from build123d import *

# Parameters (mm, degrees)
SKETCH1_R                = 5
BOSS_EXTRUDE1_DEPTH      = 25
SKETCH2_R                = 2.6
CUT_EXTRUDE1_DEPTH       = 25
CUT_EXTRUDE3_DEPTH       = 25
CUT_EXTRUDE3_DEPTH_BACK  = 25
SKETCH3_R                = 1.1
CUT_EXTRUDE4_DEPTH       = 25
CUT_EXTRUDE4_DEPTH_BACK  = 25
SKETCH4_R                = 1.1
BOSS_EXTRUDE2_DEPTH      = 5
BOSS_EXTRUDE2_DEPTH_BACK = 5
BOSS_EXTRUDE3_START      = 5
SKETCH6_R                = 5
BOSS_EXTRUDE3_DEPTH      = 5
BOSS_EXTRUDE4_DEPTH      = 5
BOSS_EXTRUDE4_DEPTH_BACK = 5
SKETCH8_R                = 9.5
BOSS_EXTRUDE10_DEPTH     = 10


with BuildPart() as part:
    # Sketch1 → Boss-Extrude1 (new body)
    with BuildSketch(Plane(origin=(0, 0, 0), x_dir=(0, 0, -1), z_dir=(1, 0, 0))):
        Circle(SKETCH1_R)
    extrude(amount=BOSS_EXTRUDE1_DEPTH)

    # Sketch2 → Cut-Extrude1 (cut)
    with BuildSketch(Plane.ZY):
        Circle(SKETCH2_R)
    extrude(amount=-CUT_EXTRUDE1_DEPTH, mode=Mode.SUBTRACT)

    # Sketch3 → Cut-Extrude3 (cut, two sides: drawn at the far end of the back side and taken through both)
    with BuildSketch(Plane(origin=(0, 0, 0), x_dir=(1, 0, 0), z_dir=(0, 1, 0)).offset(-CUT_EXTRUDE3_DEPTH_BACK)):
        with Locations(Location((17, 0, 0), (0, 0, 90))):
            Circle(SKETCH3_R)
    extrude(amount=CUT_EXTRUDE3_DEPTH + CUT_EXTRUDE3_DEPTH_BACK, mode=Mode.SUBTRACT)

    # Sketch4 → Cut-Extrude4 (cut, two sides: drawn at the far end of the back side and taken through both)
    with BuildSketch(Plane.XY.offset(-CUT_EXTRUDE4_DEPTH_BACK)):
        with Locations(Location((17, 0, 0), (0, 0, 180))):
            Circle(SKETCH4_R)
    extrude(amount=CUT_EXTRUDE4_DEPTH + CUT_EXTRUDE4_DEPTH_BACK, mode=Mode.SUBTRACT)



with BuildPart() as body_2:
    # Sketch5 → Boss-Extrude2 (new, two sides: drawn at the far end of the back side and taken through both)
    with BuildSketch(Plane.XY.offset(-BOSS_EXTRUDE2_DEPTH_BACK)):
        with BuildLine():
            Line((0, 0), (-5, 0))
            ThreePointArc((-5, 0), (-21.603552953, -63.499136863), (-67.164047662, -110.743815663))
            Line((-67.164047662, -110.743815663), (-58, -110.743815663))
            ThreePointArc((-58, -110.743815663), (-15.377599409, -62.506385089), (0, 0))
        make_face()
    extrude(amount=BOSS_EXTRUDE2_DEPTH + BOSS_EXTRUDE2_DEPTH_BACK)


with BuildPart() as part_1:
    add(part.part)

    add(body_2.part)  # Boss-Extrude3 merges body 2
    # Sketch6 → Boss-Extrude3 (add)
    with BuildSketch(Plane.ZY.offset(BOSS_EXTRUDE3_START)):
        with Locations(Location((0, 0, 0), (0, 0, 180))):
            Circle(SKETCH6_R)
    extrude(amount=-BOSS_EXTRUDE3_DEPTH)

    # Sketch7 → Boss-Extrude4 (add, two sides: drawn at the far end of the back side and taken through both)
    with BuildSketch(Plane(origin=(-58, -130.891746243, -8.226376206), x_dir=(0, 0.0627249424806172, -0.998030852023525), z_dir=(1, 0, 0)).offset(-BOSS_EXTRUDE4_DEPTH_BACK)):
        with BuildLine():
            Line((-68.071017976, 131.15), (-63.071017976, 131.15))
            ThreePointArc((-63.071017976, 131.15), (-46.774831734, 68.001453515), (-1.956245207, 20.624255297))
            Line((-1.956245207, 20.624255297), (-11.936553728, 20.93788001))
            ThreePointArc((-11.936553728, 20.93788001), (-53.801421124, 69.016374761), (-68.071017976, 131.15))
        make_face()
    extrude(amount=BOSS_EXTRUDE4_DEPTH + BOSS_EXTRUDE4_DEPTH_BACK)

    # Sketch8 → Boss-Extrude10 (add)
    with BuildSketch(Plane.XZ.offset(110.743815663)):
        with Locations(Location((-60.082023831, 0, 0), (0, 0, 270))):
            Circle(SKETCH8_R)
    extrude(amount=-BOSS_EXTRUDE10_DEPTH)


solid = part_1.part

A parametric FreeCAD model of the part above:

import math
import FreeCAD as App
import Part
import Sketcher
from FreeCAD import Vector

doc = App.newDocument("Part")
params = doc.addObject("Spreadsheet::Sheet", "Params")
for row, (alias, value) in enumerate([
    ("sketch1_diameter", "10 mm"),
    ("pad1_length", "25 mm"),
    ("sketch2_diameter", "5.2 mm"),
    ("pocket1_length", "25 mm"),
    ("sketch3_diameter", "2.2 mm"),
    ("sketch4_diameter", "2.2 mm"),
    ("sketch5_width", "5 mm"),
    ("pad2_length", "5 mm"),
    ("pad2_length2", "5 mm"),
    ("sketch6_diameter", "10 mm"),
    ("pad3_length", "5 mm"),
    ("sketch7_radius", "130.5 mm"),
    ("sketch7_length", "5 mm"),
    ("pad4_length", "5 mm"),
    ("pad4_length2", "5 mm"),
    ("sketch8_diameter", "19 mm"),
    ("pad5_length", "10 mm"),
], start=1):
    params.set(f"A{row}", alias)
    params.set(f"B{row}", "=" + value)
    params.setAlias(f"B{row}", alias)

body = doc.addObject("PartDesign::Body", "Body")

# Sketch on YZ plane
sketch1 = body.newObject("Sketcher::SketchObject", "Sketch")
sketch1.AttachmentSupport = (doc.getObject("YZ_Plane"), [""])
sketch1.MapMode = "FlatFace"
sketch1.addGeometry(Part.Circle(Vector(0, 0, 0), Vector(0, 0, 1), 5), False)
sketch1.addConstraint(Sketcher.Constraint("Coincident", 0, 3, -1, 1))
sketch1.addConstraint(Sketcher.Constraint("Diameter", 0, 10.0))
sketch1.setExpression("Constraints[1]", "Params.sketch1_diameter")
pad1 = body.newObject("PartDesign::Pad", "Pad")
pad1.Profile = sketch1
pad1.setExpression("Length", "Params.pad1_length")

# Sketch on YZ plane
sketch2 = body.newObject("Sketcher::SketchObject", "Sketch001")
sketch2.AttachmentSupport = (doc.getObject("YZ_Plane"), [""])
sketch2.MapMode = "FlatFace"
sketch2.addGeometry(Part.Circle(Vector(0, 0, 0), Vector(0, 0, 1), 2.6), False)
sketch2.addConstraint(Sketcher.Constraint("Coincident", 0, 3, -1, 1))
sketch2.addConstraint(Sketcher.Constraint("Diameter", 0, 5.2))
sketch2.setExpression("Constraints[1]", "Params.sketch2_diameter")
pocket1 = body.newObject("PartDesign::Pocket", "Pocket")
pocket1.Profile = sketch2
pocket1.setExpression("Length", "Params.pocket1_length")
pocket1.Reversed = True

# Sketch on XZ plane
sketch3 = body.newObject("Sketcher::SketchObject", "Sketch002")
sketch3.AttachmentSupport = (doc.getObject("XZ_Plane"), [""])
sketch3.MapMode = "FlatFace"
sketch3.addGeometry(Part.Circle(Vector(17, 0, 0), Vector(0, 0, 1), 1.1), False)
sketch3.addConstraint(Sketcher.Constraint("PointOnObject", 0, 3, -1))
sketch3.addConstraint(Sketcher.Constraint("Diameter", 0, 2.2))
sketch3.addConstraint(Sketcher.Constraint("DistanceX", -1, 1, 0, 3, 17.0))
sketch3.setExpression("Constraints[1]", "Params.sketch3_diameter")
pocket2 = body.newObject("PartDesign::Pocket", "Pocket001")
pocket2.Profile = sketch3
pocket2.Type = "ThroughAll"
pocket2.Midplane = True

# Sketch on XY plane
sketch4 = body.newObject("Sketcher::SketchObject", "Sketch003")
sketch4.AttachmentSupport = (doc.getObject("XY_Plane"), [""])
sketch4.MapMode = "FlatFace"
sketch4.addGeometry(Part.Circle(Vector(17, 0, 0), Vector(0, 0, 1), 1.1), False)
sketch4.addConstraint(Sketcher.Constraint("PointOnObject", 0, 3, -1))
sketch4.addConstraint(Sketcher.Constraint("Diameter", 0, 2.2))
sketch4.addConstraint(Sketcher.Constraint("DistanceX", -1, 1, 0, 3, 17.0))
sketch4.setExpression("Constraints[1]", "Params.sketch4_diameter")
pocket3 = body.newObject("PartDesign::Pocket", "Pocket002")
pocket3.Profile = sketch4
pocket3.Type = "ThroughAll"
pocket3.Midplane = True
body2 = doc.addObject("PartDesign::Body", "Body001")

# Sketch on XY plane
sketch5 = body2.newObject("Sketcher::SketchObject", "Sketch004")
sketch5.AttachmentSupport = (doc.getObject("XY_Plane001"), [""])
sketch5.MapMode = "FlatFace"
sketch5.addGeometry(Part.LineSegment(Vector(0, 0, 0), Vector(-5, 0, 0)), False)
sketch5.addGeometry(Part.ArcOfCircle(Part.Circle(Vector(-135, 0, 0), Vector(0, 0, 1), 130), math.radians(-59), math.radians(0)), False)
sketch5.addGeometry(Part.LineSegment(Vector(-67, -111, 0), Vector(-58, -111, 0)), False)
sketch5.addGeometry(Part.ArcOfCircle(Part.Circle(Vector(-135, 0, 0), Vector(0, 0, 1), 135), math.radians(-55), math.radians(0)), False)
sketch5.addConstraint(Sketcher.Constraint("Coincident", 0, 2, 1, 2))
sketch5.addConstraint(Sketcher.Constraint("Coincident", 1, 1, 2, 1))
sketch5.addConstraint(Sketcher.Constraint("Coincident", 2, 2, 3, 1))
sketch5.addConstraint(Sketcher.Constraint("Coincident", 3, 2, 0, 1))
sketch5.addConstraint(Sketcher.Constraint("Horizontal", 0))
sketch5.addConstraint(Sketcher.Constraint("Horizontal", 2))
sketch5.addConstraint(Sketcher.Constraint("Coincident", 3, 2, -1, 1))
sketch5.addConstraint(Sketcher.Constraint("Coincident", 3, 3, 1, 3))
sketch5.addConstraint(Sketcher.Constraint("PointOnObject", 1, 3, -1))
sketch5.addConstraint(Sketcher.Constraint("DistanceX", 0, 2, 0, 1, 5.0))
sketch5.addConstraint(Sketcher.Constraint("DistanceX", 2, 2, -1, 1, 58.0))
sketch5.addConstraint(Sketcher.Constraint("Radius", 1, 129.725799))
sketch5.setExpression("Constraints[9]", "Params.sketch5_width")
pad2 = body2.newObject("PartDesign::Pad", "Pad001")
pad2.Profile = sketch5
pad2.Type = "TwoLengths"
pad2.setExpression("Length", "Params.pad2_length")
pad2.setExpression("Length2", "Params.pad2_length2")
body.AllowCompound = True
doc.recompute()

boolean = body.newObject("PartDesign::Boolean", "Boolean")
boolean.Type = "Fuse"
boolean.addObjects([body2])

# Sketch on YZ plane
sketch6 = body.newObject("Sketcher::SketchObject", "Sketch005")
sketch6.AttachmentSupport = (doc.getObject("YZ_Plane"), [""])
sketch6.MapMode = "FlatFace"
sketch6.AttachmentOffset = App.Placement(Vector(0, 0, -5), App.Rotation())
sketch6.addGeometry(Part.Circle(Vector(0, 0, 0), Vector(0, 0, 1), 5), False)
sketch6.addConstraint(Sketcher.Constraint("Coincident", 0, 3, -1, 1))
sketch6.addConstraint(Sketcher.Constraint("Diameter", 0, 10.0))
sketch6.setExpression("Constraints[1]", "Params.sketch6_diameter")
pad3 = body.newObject("PartDesign::Pad", "Pad002")
pad3.Profile = sketch6
pad3.setExpression("Length", "Params.pad3_length")

# Sketch on YZ plane
sketch7 = body.newObject("Sketcher::SketchObject", "Sketch006")
sketch7.AttachmentSupport = (doc.getObject("YZ_Plane"), [""])
sketch7.MapMode = "FlatFace"
sketch7.AttachmentOffset = App.Placement(Vector(0, 0, -58), App.Rotation())
sketch7.addGeometry(Part.LineSegment(Vector(-4, 62.9, 0), Vector(-4.3, 67.9, 0)), False)
sketch7.addGeometry(Part.ArcOfCircle(Part.Circle(Vector(1.4, -63.2, 0), Vector(0, 0, 1), 131.2), math.radians(92), math.radians(149)), False)
sketch7.addGeometry(Part.LineSegment(Vector(-110.7, 5, 0), Vector(-110.4, -5, 0)), False)
sketch7.addGeometry(Part.ArcOfCircle(Part.Circle(Vector(4.2, -67.3, 0), Vector(0, 0, 1), 130.5), math.radians(94), math.radians(151)), False)
sketch7.addConstraint(Sketcher.Constraint("Coincident", 0, 2, 1, 1))
sketch7.addConstraint(Sketcher.Constraint("Coincident", 1, 2, 2, 1))
sketch7.addConstraint(Sketcher.Constraint("Coincident", 2, 2, 3, 2))
sketch7.addConstraint(Sketcher.Constraint("Coincident", 3, 1, 0, 1))
sketch7.addConstraint(Sketcher.Constraint("Radius", 3, 130.5))
sketch7.addConstraint(Sketcher.Constraint("Distance", 0, 5.0))
sketch7.addConstraint(Sketcher.Constraint("DistanceY", -1, 1, 1, 2, 5.0))
sketch7.addConstraint(Sketcher.Constraint("Radius", 1, 131.237023))
sketch7.addConstraint(Sketcher.Constraint("DistanceX", -1, 1, 3, 3, 4.229479))
sketch7.addConstraint(Sketcher.Constraint("DistanceX", 0, 2, -1, 1, 4.269751))
sketch7.addConstraint(Sketcher.Constraint("DistanceX", 2, 2, -1, 1, 110.430809))
sketch7.addConstraint(Sketcher.Constraint("DistanceY", -1, 1, 3, 1, 62.946822))
sketch7.addConstraint(Sketcher.Constraint("DistanceY", 3, 3, 1, 3, 4.11844))
sketch7.addConstraint(Sketcher.Constraint("DistanceX", 1, 2, 3, 1, 106.78769))
sketch7.setExpression("Constraints[4]", "Params.sketch7_radius")
sketch7.setExpression("Constraints[5]", "Params.sketch7_length")
pad4 = body.newObject("PartDesign::Pad", "Pad003")
pad4.Profile = sketch7
pad4.Type = "TwoLengths"
pad4.setExpression("Length", "Params.pad4_length")
pad4.setExpression("Length2", "Params.pad4_length2")

# Sketch on XZ plane
sketch8 = body.newObject("Sketcher::SketchObject", "Sketch007")
sketch8.AttachmentSupport = (doc.getObject("XZ_Plane"), [""])
sketch8.MapMode = "FlatFace"
sketch8.AttachmentOffset = App.Placement(Vector(0, 0, 110.743816), App.Rotation())
sketch8.addGeometry(Part.Circle(Vector(-60, 0, 0), Vector(0, 0, 1), 10), False)
sketch8.addConstraint(Sketcher.Constraint("PointOnObject", 0, 3, -1))
sketch8.addConstraint(Sketcher.Constraint("Diameter", 0, 19.0))
sketch8.addConstraint(Sketcher.Constraint("DistanceX", 0, 3, -1, 1, 60.082024))
sketch8.setExpression("Constraints[1]", "Params.sketch8_diameter")
pad5 = body.newObject("PartDesign::Pad", "Pad004")
pad5.Profile = sketch8
pad5.setExpression("Length", "Params.pad5_length")
pad5.Reversed = True

doc.recompute()
